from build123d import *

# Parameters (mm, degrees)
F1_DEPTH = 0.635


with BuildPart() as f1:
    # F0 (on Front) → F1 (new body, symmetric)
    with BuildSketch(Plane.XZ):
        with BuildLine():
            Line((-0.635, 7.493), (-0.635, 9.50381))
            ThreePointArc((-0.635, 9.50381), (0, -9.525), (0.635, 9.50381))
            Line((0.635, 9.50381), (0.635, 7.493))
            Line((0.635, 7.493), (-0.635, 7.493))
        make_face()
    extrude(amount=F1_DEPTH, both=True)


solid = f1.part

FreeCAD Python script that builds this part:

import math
import FreeCAD as App
import Part
import Sketcher
from FreeCAD import Vector
Q = App.Units.Quantity

doc = App.newDocument("Part")
params = doc.addObject("Spreadsheet::Sheet", "Params")
for row, (alias, value) in enumerate([
    ("sketch1_radius", "0.375 in"),
    ("sketch1_width", "0.05 in"),
    ("pad1_length", "0.05 in"),
], start=1):
    params.set(f"A{row}", alias)
    params.set(f"B{row}", "=" + value)
    params.setAlias(f"B{row}", alias)

body = doc.addObject("PartDesign::Body", "Body")

sketch1 = body.newObject("Sketcher::SketchObject", "Sketch")
sketch1.AttachmentSupport = (doc.getObject("XZ_Plane"), [""])
sketch1.MapMode = "FlatFace"
sketch1.addGeometry([
    Part.LineSegment(Vector(-0.6, 7.5, 0), Vector(-0.6, 9.5, 0)),
    Part.ArcOfCircle(Part.Circle(Vector(0, 0, 0), Vector(0, 0, 1), 9.5), math.radians(94), math.radians(446)),
    Part.LineSegment(Vector(0.6, 9.5, 0), Vector(0.6, 7.5, 0)),
    Part.LineSegment(Vector(0.6, 7.5, 0), Vector(-0.6, 7.5, 0)),
], False)
sketch1.addConstraint([
    Sketcher.Constraint("Coincident", 0, 2, 1, 1),
    Sketcher.Constraint("Coincident", 1, 2, 2, 1),
    Sketcher.Constraint("Coincident", 2, 2, 3, 1),
    Sketcher.Constraint("Coincident", 3, 2, 0, 1),
    Sketcher.Constraint("Vertical", 0),
    Sketcher.Constraint("Vertical", 2),
    Sketcher.Constraint("Horizontal", 3),
    Sketcher.Constraint("Coincident", 1, 3, -1, 1),
    Sketcher.Constraint("Horizontal", 0, 2, 1, 2),
    Sketcher.Constraint("Radius", 1, Q("0.375 in")),
    Sketcher.Constraint("DistanceX", 3, 2, 3, 1, Q("0.05 in")),
    Sketcher.Constraint("DistanceY", -1, 1, 2, 2, Q("0.295 in")),
])
sketch1.setExpression("Constraints[9]", "Params.sketch1_radius")
sketch1.setExpression("Constraints[10]", "Params.sketch1_width")
pad1 = body.newObject("PartDesign::Pad", "Pad")
pad1.Profile = sketch1
pad1.setExpression("Length", "Params.pad1_length")
pad1.Midplane = True

doc.recompute()
